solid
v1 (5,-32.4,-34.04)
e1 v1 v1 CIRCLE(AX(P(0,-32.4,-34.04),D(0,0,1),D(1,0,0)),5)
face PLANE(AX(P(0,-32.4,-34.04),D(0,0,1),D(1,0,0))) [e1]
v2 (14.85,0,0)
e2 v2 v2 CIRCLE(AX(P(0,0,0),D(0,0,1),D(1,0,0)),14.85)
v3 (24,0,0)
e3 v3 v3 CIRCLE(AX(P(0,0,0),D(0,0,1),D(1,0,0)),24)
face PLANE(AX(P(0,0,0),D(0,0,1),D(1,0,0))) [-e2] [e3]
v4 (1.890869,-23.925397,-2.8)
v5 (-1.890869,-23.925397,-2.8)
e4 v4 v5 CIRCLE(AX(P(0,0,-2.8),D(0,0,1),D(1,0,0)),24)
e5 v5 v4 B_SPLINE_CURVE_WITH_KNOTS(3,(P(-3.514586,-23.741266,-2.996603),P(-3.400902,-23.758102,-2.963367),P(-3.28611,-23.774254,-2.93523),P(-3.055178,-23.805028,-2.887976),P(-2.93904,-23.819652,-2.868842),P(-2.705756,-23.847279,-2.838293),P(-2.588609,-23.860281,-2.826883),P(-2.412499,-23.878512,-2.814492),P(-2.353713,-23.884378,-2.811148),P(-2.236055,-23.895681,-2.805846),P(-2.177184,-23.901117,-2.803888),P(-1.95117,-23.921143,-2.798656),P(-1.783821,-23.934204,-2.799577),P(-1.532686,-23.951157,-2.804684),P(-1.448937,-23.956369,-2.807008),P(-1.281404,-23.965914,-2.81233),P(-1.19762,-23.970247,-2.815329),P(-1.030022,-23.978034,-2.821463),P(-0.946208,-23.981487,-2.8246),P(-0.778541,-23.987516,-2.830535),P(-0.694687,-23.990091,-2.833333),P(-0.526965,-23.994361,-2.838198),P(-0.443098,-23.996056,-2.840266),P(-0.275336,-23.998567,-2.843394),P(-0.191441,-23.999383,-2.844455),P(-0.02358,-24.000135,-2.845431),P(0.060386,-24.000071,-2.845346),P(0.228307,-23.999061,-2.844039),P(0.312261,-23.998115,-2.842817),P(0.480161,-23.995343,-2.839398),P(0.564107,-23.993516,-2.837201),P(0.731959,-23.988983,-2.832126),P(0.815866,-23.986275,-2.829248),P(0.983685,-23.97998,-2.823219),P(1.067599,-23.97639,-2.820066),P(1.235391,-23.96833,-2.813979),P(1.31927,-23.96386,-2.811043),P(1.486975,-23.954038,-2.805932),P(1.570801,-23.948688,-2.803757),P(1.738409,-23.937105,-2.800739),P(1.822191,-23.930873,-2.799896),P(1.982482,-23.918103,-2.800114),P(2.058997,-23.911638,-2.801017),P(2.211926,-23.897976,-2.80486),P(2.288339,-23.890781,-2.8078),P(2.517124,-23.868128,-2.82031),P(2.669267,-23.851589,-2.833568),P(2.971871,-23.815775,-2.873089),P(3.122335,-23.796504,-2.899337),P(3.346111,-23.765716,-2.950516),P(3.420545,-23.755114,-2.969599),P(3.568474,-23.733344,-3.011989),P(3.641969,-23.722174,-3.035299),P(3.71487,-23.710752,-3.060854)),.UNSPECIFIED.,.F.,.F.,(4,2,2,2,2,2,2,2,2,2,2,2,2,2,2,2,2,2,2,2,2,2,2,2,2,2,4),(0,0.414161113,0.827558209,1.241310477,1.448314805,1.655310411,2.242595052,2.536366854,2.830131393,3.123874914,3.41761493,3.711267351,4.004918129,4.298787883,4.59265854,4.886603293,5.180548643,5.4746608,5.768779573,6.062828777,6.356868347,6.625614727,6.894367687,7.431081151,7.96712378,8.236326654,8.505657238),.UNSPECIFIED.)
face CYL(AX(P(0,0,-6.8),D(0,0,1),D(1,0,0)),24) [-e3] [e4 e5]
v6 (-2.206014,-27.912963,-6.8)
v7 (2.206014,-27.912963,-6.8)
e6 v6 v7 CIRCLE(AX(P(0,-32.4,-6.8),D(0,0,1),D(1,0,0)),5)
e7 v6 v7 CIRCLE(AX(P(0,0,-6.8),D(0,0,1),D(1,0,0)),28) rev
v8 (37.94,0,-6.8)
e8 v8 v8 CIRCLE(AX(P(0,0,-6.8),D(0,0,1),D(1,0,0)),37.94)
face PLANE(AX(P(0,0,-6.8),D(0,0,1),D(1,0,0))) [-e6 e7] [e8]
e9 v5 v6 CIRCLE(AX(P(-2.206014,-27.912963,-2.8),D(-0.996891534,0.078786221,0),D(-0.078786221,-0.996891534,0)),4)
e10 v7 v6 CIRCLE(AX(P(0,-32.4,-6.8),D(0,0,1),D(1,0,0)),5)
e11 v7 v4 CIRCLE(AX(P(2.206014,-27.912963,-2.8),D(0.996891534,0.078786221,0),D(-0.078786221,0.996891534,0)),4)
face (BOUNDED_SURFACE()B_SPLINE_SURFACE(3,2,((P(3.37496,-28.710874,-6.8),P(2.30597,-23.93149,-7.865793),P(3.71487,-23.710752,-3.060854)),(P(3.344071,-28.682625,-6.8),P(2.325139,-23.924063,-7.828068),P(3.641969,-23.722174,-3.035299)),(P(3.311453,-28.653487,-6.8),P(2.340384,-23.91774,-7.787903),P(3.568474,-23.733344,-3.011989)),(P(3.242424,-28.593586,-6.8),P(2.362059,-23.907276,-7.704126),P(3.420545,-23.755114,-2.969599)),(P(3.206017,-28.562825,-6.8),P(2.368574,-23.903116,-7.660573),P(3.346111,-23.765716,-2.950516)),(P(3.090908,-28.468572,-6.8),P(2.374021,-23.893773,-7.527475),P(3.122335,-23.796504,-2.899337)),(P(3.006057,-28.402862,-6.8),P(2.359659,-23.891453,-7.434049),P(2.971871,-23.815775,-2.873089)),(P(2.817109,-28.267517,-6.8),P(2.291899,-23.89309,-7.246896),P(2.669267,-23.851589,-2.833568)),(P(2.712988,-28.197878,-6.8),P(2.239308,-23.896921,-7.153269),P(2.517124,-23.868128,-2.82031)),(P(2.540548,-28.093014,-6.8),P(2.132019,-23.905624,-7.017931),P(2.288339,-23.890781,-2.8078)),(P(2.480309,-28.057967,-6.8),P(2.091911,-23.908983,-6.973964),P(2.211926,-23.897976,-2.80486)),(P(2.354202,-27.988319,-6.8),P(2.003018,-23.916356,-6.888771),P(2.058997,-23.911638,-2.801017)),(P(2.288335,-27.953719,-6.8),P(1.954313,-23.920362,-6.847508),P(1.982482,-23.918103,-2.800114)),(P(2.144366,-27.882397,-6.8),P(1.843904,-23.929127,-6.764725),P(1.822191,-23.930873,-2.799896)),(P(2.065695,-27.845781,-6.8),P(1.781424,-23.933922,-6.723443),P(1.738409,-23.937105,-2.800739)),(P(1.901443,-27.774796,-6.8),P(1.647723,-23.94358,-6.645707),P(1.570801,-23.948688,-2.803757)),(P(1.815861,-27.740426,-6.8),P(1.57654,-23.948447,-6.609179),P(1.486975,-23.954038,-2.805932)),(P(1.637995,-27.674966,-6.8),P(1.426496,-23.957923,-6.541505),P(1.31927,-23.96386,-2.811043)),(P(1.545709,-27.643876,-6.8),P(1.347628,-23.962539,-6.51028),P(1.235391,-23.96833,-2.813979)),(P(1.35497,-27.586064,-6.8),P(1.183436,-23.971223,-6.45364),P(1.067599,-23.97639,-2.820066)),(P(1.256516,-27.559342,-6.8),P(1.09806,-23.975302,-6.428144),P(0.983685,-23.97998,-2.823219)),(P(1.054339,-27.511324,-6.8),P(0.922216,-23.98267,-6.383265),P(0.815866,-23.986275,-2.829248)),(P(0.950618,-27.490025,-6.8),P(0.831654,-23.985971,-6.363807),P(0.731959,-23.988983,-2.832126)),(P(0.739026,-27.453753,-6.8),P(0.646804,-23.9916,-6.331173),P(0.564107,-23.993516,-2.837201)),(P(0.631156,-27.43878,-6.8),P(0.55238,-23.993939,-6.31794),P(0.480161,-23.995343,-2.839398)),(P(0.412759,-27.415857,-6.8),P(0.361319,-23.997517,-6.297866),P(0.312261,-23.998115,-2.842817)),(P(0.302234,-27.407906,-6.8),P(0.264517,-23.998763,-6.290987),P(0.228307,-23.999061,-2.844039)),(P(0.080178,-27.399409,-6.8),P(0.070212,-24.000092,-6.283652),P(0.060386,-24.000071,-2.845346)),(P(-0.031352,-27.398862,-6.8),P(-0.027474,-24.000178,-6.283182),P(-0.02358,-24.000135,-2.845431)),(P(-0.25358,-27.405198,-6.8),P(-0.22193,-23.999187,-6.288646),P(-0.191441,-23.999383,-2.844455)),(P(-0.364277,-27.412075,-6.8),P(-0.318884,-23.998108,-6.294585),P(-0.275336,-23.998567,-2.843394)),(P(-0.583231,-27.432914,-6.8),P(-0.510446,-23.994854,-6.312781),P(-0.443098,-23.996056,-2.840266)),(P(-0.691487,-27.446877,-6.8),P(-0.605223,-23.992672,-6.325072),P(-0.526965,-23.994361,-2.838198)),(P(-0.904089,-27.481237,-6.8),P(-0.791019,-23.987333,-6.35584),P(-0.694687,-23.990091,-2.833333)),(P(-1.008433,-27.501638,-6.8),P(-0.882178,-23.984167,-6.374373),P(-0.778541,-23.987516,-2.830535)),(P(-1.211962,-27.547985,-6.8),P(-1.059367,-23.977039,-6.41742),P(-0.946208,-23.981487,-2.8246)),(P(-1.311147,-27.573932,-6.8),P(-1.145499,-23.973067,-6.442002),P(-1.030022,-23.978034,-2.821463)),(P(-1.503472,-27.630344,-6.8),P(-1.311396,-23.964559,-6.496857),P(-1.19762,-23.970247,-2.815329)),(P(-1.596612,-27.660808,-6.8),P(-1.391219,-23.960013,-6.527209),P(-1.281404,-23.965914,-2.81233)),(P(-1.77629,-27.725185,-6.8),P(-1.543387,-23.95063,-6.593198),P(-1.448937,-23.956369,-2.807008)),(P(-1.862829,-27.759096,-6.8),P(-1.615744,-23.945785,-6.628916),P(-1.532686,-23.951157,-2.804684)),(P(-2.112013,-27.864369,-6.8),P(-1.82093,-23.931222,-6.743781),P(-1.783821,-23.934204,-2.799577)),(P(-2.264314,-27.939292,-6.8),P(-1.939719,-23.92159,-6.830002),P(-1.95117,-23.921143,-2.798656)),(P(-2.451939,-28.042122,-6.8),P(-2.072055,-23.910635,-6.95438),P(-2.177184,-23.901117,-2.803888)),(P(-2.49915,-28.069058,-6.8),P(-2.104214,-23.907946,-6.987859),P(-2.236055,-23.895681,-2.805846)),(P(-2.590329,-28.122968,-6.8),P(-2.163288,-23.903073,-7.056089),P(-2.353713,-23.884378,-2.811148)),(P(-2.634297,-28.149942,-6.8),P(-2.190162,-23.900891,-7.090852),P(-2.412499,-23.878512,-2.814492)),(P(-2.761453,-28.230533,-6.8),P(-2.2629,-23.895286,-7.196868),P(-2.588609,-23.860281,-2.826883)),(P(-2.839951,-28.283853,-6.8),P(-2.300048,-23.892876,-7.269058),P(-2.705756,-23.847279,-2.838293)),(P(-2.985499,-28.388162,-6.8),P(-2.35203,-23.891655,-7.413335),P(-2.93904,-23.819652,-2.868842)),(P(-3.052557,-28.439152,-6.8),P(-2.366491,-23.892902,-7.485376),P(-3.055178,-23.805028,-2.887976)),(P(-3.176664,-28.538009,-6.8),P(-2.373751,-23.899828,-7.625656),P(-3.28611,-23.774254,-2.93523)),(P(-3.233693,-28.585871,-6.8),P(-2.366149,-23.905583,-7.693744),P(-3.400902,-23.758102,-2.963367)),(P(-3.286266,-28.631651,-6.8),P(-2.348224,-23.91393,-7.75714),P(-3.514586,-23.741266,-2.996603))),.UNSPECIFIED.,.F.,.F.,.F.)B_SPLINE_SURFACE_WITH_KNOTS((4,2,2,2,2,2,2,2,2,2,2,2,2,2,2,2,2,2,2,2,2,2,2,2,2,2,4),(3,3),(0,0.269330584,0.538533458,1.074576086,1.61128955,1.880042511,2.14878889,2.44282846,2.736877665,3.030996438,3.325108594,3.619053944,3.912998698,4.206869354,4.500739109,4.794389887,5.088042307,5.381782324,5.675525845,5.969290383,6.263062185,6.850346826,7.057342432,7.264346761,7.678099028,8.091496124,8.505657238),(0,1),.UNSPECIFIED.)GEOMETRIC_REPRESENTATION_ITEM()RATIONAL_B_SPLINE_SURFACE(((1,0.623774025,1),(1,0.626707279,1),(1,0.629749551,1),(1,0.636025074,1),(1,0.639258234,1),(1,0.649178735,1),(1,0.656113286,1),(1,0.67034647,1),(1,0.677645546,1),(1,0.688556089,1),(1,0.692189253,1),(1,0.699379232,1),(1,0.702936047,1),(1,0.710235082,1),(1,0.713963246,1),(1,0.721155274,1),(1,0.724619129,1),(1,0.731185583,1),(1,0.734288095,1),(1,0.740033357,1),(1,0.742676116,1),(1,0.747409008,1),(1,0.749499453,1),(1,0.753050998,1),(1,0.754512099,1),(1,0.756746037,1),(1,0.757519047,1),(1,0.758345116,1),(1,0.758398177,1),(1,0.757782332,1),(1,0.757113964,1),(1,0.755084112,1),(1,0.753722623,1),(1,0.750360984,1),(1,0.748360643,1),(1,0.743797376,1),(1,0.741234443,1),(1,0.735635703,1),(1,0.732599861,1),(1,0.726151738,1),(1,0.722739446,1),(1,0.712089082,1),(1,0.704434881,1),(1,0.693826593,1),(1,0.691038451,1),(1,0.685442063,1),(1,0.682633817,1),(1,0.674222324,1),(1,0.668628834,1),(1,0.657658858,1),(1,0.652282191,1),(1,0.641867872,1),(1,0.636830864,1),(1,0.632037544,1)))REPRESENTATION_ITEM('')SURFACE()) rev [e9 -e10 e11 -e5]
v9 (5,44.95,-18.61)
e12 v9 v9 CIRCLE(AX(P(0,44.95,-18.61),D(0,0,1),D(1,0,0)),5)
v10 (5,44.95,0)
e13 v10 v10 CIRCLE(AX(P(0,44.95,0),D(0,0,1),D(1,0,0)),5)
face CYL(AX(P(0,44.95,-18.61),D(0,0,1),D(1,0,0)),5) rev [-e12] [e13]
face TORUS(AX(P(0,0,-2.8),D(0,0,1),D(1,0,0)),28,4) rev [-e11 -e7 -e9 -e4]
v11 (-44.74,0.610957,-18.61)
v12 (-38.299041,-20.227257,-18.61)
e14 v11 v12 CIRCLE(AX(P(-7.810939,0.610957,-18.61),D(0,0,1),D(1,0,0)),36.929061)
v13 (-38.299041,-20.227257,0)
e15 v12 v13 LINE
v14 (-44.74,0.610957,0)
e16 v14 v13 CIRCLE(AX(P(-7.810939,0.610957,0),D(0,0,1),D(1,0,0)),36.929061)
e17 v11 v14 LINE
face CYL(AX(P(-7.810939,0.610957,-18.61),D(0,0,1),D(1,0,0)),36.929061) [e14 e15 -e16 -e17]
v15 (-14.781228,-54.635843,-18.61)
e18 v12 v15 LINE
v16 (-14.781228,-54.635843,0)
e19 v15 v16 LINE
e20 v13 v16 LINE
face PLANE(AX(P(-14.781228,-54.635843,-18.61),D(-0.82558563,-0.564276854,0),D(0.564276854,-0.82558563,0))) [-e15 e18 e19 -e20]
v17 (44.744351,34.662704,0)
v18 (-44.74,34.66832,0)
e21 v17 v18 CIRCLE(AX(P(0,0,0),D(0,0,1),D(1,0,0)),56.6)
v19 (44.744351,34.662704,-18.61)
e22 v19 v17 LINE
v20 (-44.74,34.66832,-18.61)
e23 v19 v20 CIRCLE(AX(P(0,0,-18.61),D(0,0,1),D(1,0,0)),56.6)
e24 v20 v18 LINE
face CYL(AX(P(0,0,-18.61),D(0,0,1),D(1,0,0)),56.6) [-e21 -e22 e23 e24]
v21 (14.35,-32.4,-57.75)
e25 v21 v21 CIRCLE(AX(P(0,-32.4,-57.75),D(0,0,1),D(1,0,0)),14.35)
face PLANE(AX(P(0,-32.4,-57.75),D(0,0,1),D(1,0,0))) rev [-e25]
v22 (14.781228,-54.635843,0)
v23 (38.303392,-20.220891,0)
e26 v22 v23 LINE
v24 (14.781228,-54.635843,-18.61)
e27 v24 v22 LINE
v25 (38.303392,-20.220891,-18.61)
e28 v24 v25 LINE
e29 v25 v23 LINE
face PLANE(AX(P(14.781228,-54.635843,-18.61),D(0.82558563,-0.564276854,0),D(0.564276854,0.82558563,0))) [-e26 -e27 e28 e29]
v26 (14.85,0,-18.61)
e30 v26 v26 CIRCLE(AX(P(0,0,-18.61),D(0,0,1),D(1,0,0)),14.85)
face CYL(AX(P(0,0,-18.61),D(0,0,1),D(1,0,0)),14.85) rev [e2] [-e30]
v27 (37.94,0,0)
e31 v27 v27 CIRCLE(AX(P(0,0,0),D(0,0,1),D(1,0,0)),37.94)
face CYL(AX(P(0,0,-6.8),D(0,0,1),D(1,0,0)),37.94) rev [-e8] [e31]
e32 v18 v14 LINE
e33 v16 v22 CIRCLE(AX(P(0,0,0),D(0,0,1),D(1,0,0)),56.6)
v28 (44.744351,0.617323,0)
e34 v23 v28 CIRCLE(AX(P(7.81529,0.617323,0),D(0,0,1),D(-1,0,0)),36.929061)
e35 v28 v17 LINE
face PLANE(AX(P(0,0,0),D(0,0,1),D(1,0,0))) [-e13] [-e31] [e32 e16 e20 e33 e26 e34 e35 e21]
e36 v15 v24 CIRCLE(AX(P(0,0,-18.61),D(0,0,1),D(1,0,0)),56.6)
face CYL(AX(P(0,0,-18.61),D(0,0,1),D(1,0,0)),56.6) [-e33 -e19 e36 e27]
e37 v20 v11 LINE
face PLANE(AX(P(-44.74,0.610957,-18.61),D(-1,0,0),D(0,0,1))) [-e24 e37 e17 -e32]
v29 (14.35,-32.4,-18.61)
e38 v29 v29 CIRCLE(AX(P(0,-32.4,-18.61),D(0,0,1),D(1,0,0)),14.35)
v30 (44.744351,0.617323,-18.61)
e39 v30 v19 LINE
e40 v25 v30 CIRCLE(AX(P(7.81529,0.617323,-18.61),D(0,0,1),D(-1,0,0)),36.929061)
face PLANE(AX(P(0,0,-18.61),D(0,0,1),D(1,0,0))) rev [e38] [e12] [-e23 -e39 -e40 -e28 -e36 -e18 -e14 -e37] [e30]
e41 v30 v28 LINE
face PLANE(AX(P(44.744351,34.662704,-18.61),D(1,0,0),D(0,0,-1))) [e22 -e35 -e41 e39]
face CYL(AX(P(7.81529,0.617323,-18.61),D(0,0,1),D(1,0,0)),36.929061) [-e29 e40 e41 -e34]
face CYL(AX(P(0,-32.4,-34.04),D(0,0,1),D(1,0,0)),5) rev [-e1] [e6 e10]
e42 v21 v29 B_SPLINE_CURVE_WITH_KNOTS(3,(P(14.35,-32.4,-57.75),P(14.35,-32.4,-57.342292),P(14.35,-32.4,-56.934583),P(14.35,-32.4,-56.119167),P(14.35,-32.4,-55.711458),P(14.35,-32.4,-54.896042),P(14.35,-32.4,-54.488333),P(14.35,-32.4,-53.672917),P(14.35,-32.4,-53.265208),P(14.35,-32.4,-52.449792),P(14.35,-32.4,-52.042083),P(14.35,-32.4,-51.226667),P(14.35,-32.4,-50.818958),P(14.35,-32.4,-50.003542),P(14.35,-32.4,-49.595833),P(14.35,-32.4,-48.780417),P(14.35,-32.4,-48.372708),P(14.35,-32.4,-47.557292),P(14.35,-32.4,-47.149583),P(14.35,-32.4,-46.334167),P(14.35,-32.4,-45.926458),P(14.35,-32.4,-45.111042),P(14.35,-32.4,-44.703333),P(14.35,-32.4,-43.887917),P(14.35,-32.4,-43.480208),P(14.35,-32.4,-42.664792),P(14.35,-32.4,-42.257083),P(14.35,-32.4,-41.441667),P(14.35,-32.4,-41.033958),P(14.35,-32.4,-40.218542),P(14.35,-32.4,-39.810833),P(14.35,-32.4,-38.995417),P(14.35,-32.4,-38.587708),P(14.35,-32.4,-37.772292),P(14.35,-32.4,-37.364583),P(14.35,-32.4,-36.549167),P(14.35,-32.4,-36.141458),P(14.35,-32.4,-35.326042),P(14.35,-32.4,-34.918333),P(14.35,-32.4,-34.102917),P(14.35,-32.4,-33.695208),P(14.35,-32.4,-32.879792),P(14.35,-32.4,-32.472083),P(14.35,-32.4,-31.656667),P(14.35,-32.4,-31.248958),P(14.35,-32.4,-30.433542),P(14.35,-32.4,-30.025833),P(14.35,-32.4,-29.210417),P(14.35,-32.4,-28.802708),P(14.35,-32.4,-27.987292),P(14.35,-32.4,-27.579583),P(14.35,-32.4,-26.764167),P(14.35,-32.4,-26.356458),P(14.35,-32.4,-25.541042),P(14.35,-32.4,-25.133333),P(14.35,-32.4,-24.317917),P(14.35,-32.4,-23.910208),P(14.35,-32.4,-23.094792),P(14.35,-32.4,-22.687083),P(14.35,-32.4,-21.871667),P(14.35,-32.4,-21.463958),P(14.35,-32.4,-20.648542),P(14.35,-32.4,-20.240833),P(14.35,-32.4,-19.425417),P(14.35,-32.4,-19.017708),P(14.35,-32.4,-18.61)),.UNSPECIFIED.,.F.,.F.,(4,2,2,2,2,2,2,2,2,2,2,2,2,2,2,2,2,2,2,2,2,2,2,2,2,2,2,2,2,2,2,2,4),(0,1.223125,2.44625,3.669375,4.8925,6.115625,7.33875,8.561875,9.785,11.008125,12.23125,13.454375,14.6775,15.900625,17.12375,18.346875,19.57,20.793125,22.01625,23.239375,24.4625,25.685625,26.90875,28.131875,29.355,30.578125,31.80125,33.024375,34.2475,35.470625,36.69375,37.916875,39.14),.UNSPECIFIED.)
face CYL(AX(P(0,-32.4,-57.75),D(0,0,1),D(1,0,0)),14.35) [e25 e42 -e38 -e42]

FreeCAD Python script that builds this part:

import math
import FreeCAD as App
import Part
import Sketcher

V = App.Vector
Q = App.Units.Quantity


def edges_at(feature, points):
    """Names of the edges that pass closest to the given points."""
    edges = feature.Shape.Edges
    near = lambda p: min(range(len(edges)), key=lambda i: edges[i].distToShape(Part.Vertex(*p))[0])
    return sorted({f"Edge{near(p) + 1}" for p in points})

doc = App.newDocument("Part")
body = doc.addObject("PartDesign::Body", "Body")

sketch1 = body.newObject("Sketcher::SketchObject", "Sketch")
sketch1.AttachmentSupport = (doc.getObject("XY_Plane"), [""])
sketch1.MapMode = "FlatFace"
sketch1.addGeometry(Part.LineSegment(V(44.744351, 0.617323, 0), V(44.744351, 34.662704, 0)), False)
sketch1.addGeometry(Part.ArcOfCircle(Part.Circle(V(0, 0, 0), V(0, 0, 1), 56.6), math.radians(37.764349), math.radians(142.228461)), False)
sketch1.addGeometry(Part.LineSegment(V(-44.74, 34.66832, 0), V(-44.74, 0.610957, 0)), False)
sketch1.addGeometry(Part.ArcOfCircle(Part.Circle(V(-7.810939, 0.610957, 0), V(0, 0, 1), 36.929061), math.radians(180), math.radians(214.35209)), False)
sketch1.addGeometry(Part.LineSegment(V(-38.299041, -20.227257, 0), V(-14.781228, -54.635843, 0)), False)
sketch1.addGeometry(Part.ArcOfCircle(Part.Circle(V(0, 0, 0), V(0, 0, 1), 56.6), math.radians(-105.138455), math.radians(-74.861545)), False)
sketch1.addGeometry(Part.LineSegment(V(14.781228, -54.635843, 0), V(38.303392, -20.220891, 0)), False)
sketch1.addGeometry(Part.ArcOfCircle(Part.Circle(V(7.81529, 0.617323, 0), V(0, 0, 1), 36.929061), math.radians(-34.35209), math.radians(0)), False)
sketch1.addGeometry(Part.Circle(V(0, 0, 0), V(0, 0, 1), 14.85), False)
sketch1.addGeometry(Part.Circle(V(0, 44.95, 0), V(0, 0, 1), 5), False)
sketch1.addConstraint(Sketcher.Constraint("Coincident", 0, 2, 1, 1))
sketch1.addConstraint(Sketcher.Constraint("Coincident", 1, 2, 2, 1))
sketch1.addConstraint(Sketcher.Constraint("Tangent", 2, 2, 3, 1))
sketch1.addConstraint(Sketcher.Constraint("Tangent", 3, 2, 4, 1))
sketch1.addConstraint(Sketcher.Constraint("Coincident", 4, 2, 5, 1))
sketch1.addConstraint(Sketcher.Constraint("Coincident", 5, 2, 6, 1))
sketch1.addConstraint(Sketcher.Constraint("Tangent", 6, 2, 7, 1))
sketch1.addConstraint(Sketcher.Constraint("Tangent", 7, 2, 0, 1))
sketch1.addConstraint(Sketcher.Constraint("Vertical", 0))
sketch1.addConstraint(Sketcher.Constraint("Vertical", 2))
sketch1.addConstraint(Sketcher.Constraint("Coincident", 1, 3, -1, 1))
sketch1.addConstraint(Sketcher.Constraint("Coincident", 5, 3, -1, 1))
sketch1.addConstraint(Sketcher.Constraint("Coincident", 8, 3, -1, 1))
sketch1.addConstraint(Sketcher.Constraint("Equal", 1, 5))
sketch1.addConstraint(Sketcher.Constraint("Equal", 3, 7))
sketch1.addConstraint(Sketcher.Constraint("PointOnObject", 9, 3, -2))
sketch1.addConstraint(Sketcher.Constraint("Horizontal", 4, 2, 5, 2))
sketch1.addConstraint(Sketcher.Constraint("Diameter", 9, Q("10 mm")))
sketch1.addConstraint(Sketcher.Constraint("Diameter", 8, Q("29.7 mm")))
sketch1.addConstraint(Sketcher.Constraint("Radius", 1, Q("56.6 mm")))
sketch1.addConstraint(Sketcher.Constraint("DistanceY", -1, 1, 9, 3, Q("44.95 mm")))
sketch1.addConstraint(Sketcher.Constraint("DistanceX", 1, 2, -1, 1, Q("44.74 mm")))
sketch1.addConstraint(Sketcher.Constraint("Radius", 3, Q("36.929061 mm")))
sketch1.addConstraint(Sketcher.Constraint("Distance", 6, Q("41.685502 mm")))
sketch1.addConstraint(Sketcher.Constraint("DistanceY", 0, 1, 0, 2, Q("34.045382 mm")))
sketch1.addConstraint(Sketcher.Constraint("DistanceX", 3, 2, 3, 3, Q("30.488102 mm")))
sketch1.addConstraint(Sketcher.Constraint("DistanceY", 4, 2, 3, 3, Q("55.2468 mm")))
pad1 = body.newObject("PartDesign::Pad", "Pad")
pad1.Profile = sketch1
pad1.Length = 18.61
pad1.Reversed = True

sketch2 = body.newObject("Sketcher::SketchObject", "Sketch001")
sketch2.AttachmentSupport = (doc.getObject("XY_Plane"), [""])
sketch2.MapMode = "FlatFace"
sketch2.addGeometry(Part.Circle(V(0, 0, 0), V(0, 0, 1), 37.94), False)
sketch2.addGeometry(Part.Circle(V(0, 0, 0), V(0, 0, 1), 24), False)
sketch2.addConstraint(Sketcher.Constraint("Coincident", 0, 3, -1, 1))
sketch2.addConstraint(Sketcher.Constraint("Coincident", 1, 3, -1, 1))
sketch2.addConstraint(Sketcher.Constraint("Diameter", 1, Q("48 mm")))
sketch2.addConstraint(Sketcher.Constraint("Diameter", 0, Q("75.88 mm")))
pocket1 = body.newObject("PartDesign::Pocket", "Pocket")
pocket1.Profile = sketch2
pocket1.Length = 6.8

sketch3 = body.newObject("Sketcher::SketchObject", "Sketch002")
sketch3.AttachmentSupport = (doc.getObject("XY_Plane"), [""])
sketch3.MapMode = "FlatFace"
sketch3.AttachmentOffset = App.Placement(V(0, 0, -6.8), App.Rotation())
sketch3.addGeometry(Part.Circle(V(0, -32.4, 0), V(0, 0, 1), 14.35), False)
sketch3.addConstraint(Sketcher.Constraint("PointOnObject", 0, 3, -2))
sketch3.addConstraint(Sketcher.Constraint("Diameter", 0, Q("28.7 mm")))
sketch3.addConstraint(Sketcher.Constraint("DistanceY", 0, 3, -1, 1, Q("32.4 mm")))
pad2 = body.newObject("PartDesign::Pad", "Pad001")
pad2.Profile = sketch3
pad2.Length = 50.95
pad2.Reversed = True

sketch4 = body.newObject("Sketcher::SketchObject", "Sketch003")
sketch4.AttachmentSupport = (doc.getObject("XY_Plane"), [""])
sketch4.MapMode = "FlatFace"
sketch4.AttachmentOffset = App.Placement(V(0, 0, -6.8), App.Rotation())
sketch4.addGeometry(Part.Circle(V(0, -32.4, 0), V(0, 0, 1), 5), False)
sketch4.addConstraint(Sketcher.Constraint("PointOnObject", 0, 3, -2))
sketch4.addConstraint(Sketcher.Constraint("Diameter", 0, Q("10 mm")))
sketch4.addConstraint(Sketcher.Constraint("DistanceY", 0, 3, -1, 1, Q("32.4 mm")))
pocket2 = body.newObject("PartDesign::Pocket", "Pocket001")
pocket2.Profile = sketch4
pocket2.Length = 27.24
doc.recompute()

fillet = body.newObject("PartDesign::Fillet", "Fillet")
fillet.Base = (pocket2, edges_at(pocket2, [(-24, 0, -6.8)]))
fillet.Radius = 4

doc.recompute()
